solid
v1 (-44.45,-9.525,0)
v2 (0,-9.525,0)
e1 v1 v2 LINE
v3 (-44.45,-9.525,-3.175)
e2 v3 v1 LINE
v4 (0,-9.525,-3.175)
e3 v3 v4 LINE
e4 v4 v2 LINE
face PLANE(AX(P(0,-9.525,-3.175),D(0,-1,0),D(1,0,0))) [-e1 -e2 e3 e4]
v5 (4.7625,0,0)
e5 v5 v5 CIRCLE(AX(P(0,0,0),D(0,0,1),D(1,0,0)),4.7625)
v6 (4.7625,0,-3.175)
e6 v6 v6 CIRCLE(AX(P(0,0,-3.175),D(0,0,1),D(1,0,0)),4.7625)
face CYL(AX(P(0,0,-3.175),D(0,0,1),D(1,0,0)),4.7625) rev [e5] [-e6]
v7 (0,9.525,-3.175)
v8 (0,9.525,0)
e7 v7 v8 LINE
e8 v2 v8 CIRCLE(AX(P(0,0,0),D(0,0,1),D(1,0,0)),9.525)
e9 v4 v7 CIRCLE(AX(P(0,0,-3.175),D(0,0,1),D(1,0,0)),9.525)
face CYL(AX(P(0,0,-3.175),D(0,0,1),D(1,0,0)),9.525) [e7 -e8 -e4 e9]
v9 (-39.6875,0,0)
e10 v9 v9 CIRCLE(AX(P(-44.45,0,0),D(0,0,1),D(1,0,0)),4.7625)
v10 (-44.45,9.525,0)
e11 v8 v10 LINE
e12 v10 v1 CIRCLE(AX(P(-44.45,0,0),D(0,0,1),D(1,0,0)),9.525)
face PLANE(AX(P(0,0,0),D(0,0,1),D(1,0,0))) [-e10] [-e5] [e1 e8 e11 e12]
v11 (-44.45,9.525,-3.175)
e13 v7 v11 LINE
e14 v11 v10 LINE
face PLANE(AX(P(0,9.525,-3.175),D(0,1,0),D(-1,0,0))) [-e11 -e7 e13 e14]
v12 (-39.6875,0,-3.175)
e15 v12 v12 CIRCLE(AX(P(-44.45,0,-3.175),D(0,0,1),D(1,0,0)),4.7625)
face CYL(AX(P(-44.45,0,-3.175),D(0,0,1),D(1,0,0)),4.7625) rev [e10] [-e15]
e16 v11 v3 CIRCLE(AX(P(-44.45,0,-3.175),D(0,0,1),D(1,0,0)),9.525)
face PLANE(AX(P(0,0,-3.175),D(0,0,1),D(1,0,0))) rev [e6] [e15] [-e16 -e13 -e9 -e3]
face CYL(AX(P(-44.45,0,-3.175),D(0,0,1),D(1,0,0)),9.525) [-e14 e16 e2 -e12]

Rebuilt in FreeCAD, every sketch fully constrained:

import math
import FreeCAD as App
import Part
import Sketcher
Q = App.Units.Quantity

doc = App.newDocument("Part")
body = doc.addObject("PartDesign::Body", "Body")

# Sketch on XY plane
sketch1 = body.newObject("Sketcher::SketchObject", "Sketch")
sketch1.AttachmentSupport = (doc.getObject("XY_Plane"), [""])
sketch1.MapMode = "FlatFace"
sketch1.addGeometry(Part.LineSegment(App.Vector(-44.45, -9.525, 0), App.Vector(0, -9.525, 0)), False)
sketch1.addGeometry(Part.ArcOfCircle(Part.Circle(App.Vector(0, 0, 0), App.Vector(0, 0, 1), 9.525), math.radians(-90), math.radians(90)), False)
sketch1.addGeometry(Part.LineSegment(App.Vector(0, 9.525, 0), App.Vector(-44.45, 9.525, 0)), False)
sketch1.addGeometry(Part.ArcOfCircle(Part.Circle(App.Vector(-44.45, 0, 0), App.Vector(0, 0, 1), 9.525), math.radians(90), math.radians(270)), False)
sketch1.addGeometry(Part.Circle(App.Vector(0, 0, 0), App.Vector(0, 0, 1), 4.7625), False)
sketch1.addGeometry(Part.Circle(App.Vector(-44.45, 0, 0), App.Vector(0, 0, 1), 4.7625), False)
sketch1.addConstraint(Sketcher.Constraint("Tangent", 0, 2, 1, 1))
sketch1.addConstraint(Sketcher.Constraint("Tangent", 1, 2, 2, 1))
sketch1.addConstraint(Sketcher.Constraint("Tangent", 2, 2, 3, 1))
sketch1.addConstraint(Sketcher.Constraint("Tangent", 3, 2, 0, 1))
sketch1.addConstraint(Sketcher.Constraint("Horizontal", 0))
sketch1.addConstraint(Sketcher.Constraint("Horizontal", 2))
sketch1.addConstraint(Sketcher.Constraint("Coincident", 1, 3, -1, 1))
sketch1.addConstraint(Sketcher.Constraint("Coincident", 4, 3, -1, 1))
sketch1.addConstraint(Sketcher.Constraint("Coincident", 5, 3, 3, 3))
sketch1.addConstraint(Sketcher.Constraint("Equal", 4, 5))
sketch1.addConstraint(Sketcher.Constraint("Diameter", 4, Q("0.375 in")))
sketch1.addConstraint(Sketcher.Constraint("Radius", 1, Q("0.375 in")))
sketch1.addConstraint(Sketcher.Constraint("DistanceX", 0, 1, 0, 2, Q("1.75 in")))
pad1 = body.newObject("PartDesign::Pad", "Pad")
pad1.Profile = sketch1
pad1.Length = Q("0.125 in")
pad1.Reversed = True

doc.recompute()
